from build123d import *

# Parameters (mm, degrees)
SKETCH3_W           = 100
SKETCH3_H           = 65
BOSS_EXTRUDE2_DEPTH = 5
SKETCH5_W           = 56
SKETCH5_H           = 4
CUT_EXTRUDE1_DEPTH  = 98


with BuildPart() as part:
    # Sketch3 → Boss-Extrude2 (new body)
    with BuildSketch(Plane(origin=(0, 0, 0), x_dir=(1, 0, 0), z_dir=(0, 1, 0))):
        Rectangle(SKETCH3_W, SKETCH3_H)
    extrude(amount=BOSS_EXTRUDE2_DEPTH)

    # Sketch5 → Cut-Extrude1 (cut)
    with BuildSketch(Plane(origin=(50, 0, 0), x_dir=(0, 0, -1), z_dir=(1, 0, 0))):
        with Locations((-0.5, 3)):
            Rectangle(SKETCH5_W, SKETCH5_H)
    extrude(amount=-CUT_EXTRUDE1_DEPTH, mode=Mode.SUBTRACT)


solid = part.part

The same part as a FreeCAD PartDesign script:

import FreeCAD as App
import Part
import Sketcher
Q = App.Units.Quantity


def add_polygon(sketch, points):
    """Adds a closed chain of lines whose ends are joined by coincident constraints."""
    first, n = sketch.GeometryCount, len(points)
    for a, b in zip(points, points[1:] + points[:1]):
        sketch.addGeometry(Part.LineSegment(App.Vector(*a, 0), App.Vector(*b, 0)), False)
    for i in range(n):
        sketch.addConstraint(Sketcher.Constraint("Coincident", first + i, 2, first + (i + 1) % n, 1))

doc = App.newDocument("Part")
body = doc.addObject("PartDesign::Body", "Body")

sketch1 = body.newObject("Sketcher::SketchObject", "Sketch")
sketch1.AttachmentSupport = (doc.getObject("XZ_Plane"), [""])
sketch1.MapMode = "FlatFace"
add_polygon(sketch1, [(-50, -32), (-50, 32), (50, 32), (50, -32)])
sketch1.addConstraint(Sketcher.Constraint("Vertical", 0))
sketch1.addConstraint(Sketcher.Constraint("Horizontal", 1))
sketch1.addConstraint(Sketcher.Constraint("Vertical", 2))
sketch1.addConstraint(Sketcher.Constraint("Horizontal", 3))
sketch1.addConstraint(Sketcher.Constraint("Symmetric", 0, 2, 2, 2, -1, 1))
sketch1.addConstraint(Sketcher.Constraint("DistanceX", 1, 1, 1, 2, Q("100 mm")))
sketch1.addConstraint(Sketcher.Constraint("DistanceY", 0, 1, 0, 2, Q("65 mm")))
pad1 = body.newObject("PartDesign::Pad", "Pad")
pad1.Profile = sketch1
pad1.Length = 5
pad1.Reversed = True

sketch2 = body.newObject("Sketcher::SketchObject", "Sketch001")
sketch2.AttachmentSupport = (doc.getObject("YZ_Plane"), [""])
sketch2.MapMode = "FlatFace"
sketch2.AttachmentOffset = App.Placement(App.Vector(0, 0, 50), App.Rotation())
add_polygon(sketch2, [(5, 28.5), (1, 28.5), (1, -27.5), (5, -27.5)])
sketch2.addConstraint(Sketcher.Constraint("Horizontal", 0))
sketch2.addConstraint(Sketcher.Constraint("Vertical", 1))
sketch2.addConstraint(Sketcher.Constraint("Horizontal", 2))
sketch2.addConstraint(Sketcher.Constraint("Vertical", 3))
sketch2.addConstraint(Sketcher.Constraint("DistanceX", 0, 2, 0, 1, Q("4 mm")))
sketch2.addConstraint(Sketcher.Constraint("DistanceY", 1, 2, 1, 1, Q("56 mm")))
sketch2.addConstraint(Sketcher.Constraint("DistanceX", -1, 1, 0, 2, Q("1 mm")))
sketch2.addConstraint(Sketcher.Constraint("DistanceY", -1, 1, 0, 2, Q("28.5 mm")))
pocket1 = body.newObject("PartDesign::Pocket", "Pocket")
pocket1.Profile = sketch2
pocket1.Length = 98

doc.recompute()
